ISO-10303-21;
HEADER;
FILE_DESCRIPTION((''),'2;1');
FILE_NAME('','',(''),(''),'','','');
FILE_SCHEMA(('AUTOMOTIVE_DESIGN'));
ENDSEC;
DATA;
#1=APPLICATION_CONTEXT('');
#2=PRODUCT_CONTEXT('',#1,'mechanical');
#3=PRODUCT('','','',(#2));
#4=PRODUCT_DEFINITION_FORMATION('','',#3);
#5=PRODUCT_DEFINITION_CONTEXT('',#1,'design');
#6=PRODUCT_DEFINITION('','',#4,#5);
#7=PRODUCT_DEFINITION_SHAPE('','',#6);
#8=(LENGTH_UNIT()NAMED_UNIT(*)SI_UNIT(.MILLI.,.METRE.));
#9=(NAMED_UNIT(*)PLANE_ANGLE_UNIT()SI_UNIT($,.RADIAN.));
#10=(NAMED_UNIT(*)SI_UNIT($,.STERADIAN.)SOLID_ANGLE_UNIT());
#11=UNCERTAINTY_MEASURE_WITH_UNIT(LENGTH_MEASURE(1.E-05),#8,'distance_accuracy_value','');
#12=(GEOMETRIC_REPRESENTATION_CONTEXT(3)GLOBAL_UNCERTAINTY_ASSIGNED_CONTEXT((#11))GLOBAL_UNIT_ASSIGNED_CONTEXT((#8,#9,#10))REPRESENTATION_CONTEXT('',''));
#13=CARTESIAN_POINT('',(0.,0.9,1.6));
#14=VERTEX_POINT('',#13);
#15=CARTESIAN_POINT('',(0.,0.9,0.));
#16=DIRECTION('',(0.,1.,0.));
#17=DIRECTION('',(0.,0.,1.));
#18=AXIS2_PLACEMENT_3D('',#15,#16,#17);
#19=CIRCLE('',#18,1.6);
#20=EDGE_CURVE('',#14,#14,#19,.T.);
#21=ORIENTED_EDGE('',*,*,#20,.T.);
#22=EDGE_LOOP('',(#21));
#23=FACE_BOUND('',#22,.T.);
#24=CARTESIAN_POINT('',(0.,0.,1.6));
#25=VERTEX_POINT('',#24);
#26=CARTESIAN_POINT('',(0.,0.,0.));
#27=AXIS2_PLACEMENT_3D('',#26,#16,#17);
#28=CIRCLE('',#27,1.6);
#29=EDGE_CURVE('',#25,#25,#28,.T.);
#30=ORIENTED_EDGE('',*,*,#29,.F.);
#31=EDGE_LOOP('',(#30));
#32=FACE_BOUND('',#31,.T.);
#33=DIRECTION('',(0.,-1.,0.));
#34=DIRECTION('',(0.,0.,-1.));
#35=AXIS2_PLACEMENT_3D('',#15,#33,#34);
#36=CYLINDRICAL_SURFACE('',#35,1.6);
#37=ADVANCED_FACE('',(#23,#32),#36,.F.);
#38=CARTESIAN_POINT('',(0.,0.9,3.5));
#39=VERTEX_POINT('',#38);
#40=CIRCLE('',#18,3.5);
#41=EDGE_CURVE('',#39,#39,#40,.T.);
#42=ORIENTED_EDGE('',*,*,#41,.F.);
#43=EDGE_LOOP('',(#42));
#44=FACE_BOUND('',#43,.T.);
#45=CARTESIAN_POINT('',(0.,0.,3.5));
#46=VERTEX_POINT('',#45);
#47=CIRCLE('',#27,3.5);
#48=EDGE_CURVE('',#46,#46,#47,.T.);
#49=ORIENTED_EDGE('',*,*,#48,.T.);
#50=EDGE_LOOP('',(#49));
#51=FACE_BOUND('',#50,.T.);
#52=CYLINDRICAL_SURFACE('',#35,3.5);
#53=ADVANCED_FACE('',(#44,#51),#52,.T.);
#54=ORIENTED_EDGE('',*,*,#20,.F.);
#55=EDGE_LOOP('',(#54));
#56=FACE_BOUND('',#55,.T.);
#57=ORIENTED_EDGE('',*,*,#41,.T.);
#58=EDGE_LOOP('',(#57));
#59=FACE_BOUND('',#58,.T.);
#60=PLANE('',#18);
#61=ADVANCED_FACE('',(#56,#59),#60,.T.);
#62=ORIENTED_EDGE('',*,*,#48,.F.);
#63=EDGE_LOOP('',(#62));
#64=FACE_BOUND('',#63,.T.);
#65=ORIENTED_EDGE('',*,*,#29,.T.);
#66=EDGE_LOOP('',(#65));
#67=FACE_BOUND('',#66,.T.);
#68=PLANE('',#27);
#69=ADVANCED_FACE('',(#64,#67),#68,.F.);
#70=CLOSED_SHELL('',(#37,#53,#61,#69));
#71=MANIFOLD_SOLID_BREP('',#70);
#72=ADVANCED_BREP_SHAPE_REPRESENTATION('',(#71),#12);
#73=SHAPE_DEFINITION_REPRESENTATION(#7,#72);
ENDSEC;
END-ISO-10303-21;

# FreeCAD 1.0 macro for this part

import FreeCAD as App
import Part
import Sketcher

V = App.Vector
Q = App.Units.Quantity

doc = App.newDocument("Part")
body = doc.addObject("PartDesign::Body", "Body")

# Sketch on XZ plane
sketch1 = body.newObject("Sketcher::SketchObject", "Sketch")
sketch1.AttachmentSupport = (doc.getObject("XZ_Plane"), [""])
sketch1.MapMode = "FlatFace"
sketch1.addGeometry([
    Part.Circle(V(0, 0, 0), V(0, 0, 1), 3.5),
    Part.Circle(V(0, 0, 0), V(0, 0, 1), 1.6),
], False)
sketch1.addConstraint([
    Sketcher.Constraint("Coincident", 0, 3, -1, 1),
    Sketcher.Constraint("Coincident", 1, 3, -1, 1),
    Sketcher.Constraint("Diameter", 0, Q("7 mm")),
    Sketcher.Constraint("Diameter", 1, Q("3.2 mm")),
])
pad1 = body.newObject("PartDesign::Pad", "Pad")
pad1.Profile = sketch1
pad1.Length = 0.9
pad1.Reversed = True

doc.recompute()
